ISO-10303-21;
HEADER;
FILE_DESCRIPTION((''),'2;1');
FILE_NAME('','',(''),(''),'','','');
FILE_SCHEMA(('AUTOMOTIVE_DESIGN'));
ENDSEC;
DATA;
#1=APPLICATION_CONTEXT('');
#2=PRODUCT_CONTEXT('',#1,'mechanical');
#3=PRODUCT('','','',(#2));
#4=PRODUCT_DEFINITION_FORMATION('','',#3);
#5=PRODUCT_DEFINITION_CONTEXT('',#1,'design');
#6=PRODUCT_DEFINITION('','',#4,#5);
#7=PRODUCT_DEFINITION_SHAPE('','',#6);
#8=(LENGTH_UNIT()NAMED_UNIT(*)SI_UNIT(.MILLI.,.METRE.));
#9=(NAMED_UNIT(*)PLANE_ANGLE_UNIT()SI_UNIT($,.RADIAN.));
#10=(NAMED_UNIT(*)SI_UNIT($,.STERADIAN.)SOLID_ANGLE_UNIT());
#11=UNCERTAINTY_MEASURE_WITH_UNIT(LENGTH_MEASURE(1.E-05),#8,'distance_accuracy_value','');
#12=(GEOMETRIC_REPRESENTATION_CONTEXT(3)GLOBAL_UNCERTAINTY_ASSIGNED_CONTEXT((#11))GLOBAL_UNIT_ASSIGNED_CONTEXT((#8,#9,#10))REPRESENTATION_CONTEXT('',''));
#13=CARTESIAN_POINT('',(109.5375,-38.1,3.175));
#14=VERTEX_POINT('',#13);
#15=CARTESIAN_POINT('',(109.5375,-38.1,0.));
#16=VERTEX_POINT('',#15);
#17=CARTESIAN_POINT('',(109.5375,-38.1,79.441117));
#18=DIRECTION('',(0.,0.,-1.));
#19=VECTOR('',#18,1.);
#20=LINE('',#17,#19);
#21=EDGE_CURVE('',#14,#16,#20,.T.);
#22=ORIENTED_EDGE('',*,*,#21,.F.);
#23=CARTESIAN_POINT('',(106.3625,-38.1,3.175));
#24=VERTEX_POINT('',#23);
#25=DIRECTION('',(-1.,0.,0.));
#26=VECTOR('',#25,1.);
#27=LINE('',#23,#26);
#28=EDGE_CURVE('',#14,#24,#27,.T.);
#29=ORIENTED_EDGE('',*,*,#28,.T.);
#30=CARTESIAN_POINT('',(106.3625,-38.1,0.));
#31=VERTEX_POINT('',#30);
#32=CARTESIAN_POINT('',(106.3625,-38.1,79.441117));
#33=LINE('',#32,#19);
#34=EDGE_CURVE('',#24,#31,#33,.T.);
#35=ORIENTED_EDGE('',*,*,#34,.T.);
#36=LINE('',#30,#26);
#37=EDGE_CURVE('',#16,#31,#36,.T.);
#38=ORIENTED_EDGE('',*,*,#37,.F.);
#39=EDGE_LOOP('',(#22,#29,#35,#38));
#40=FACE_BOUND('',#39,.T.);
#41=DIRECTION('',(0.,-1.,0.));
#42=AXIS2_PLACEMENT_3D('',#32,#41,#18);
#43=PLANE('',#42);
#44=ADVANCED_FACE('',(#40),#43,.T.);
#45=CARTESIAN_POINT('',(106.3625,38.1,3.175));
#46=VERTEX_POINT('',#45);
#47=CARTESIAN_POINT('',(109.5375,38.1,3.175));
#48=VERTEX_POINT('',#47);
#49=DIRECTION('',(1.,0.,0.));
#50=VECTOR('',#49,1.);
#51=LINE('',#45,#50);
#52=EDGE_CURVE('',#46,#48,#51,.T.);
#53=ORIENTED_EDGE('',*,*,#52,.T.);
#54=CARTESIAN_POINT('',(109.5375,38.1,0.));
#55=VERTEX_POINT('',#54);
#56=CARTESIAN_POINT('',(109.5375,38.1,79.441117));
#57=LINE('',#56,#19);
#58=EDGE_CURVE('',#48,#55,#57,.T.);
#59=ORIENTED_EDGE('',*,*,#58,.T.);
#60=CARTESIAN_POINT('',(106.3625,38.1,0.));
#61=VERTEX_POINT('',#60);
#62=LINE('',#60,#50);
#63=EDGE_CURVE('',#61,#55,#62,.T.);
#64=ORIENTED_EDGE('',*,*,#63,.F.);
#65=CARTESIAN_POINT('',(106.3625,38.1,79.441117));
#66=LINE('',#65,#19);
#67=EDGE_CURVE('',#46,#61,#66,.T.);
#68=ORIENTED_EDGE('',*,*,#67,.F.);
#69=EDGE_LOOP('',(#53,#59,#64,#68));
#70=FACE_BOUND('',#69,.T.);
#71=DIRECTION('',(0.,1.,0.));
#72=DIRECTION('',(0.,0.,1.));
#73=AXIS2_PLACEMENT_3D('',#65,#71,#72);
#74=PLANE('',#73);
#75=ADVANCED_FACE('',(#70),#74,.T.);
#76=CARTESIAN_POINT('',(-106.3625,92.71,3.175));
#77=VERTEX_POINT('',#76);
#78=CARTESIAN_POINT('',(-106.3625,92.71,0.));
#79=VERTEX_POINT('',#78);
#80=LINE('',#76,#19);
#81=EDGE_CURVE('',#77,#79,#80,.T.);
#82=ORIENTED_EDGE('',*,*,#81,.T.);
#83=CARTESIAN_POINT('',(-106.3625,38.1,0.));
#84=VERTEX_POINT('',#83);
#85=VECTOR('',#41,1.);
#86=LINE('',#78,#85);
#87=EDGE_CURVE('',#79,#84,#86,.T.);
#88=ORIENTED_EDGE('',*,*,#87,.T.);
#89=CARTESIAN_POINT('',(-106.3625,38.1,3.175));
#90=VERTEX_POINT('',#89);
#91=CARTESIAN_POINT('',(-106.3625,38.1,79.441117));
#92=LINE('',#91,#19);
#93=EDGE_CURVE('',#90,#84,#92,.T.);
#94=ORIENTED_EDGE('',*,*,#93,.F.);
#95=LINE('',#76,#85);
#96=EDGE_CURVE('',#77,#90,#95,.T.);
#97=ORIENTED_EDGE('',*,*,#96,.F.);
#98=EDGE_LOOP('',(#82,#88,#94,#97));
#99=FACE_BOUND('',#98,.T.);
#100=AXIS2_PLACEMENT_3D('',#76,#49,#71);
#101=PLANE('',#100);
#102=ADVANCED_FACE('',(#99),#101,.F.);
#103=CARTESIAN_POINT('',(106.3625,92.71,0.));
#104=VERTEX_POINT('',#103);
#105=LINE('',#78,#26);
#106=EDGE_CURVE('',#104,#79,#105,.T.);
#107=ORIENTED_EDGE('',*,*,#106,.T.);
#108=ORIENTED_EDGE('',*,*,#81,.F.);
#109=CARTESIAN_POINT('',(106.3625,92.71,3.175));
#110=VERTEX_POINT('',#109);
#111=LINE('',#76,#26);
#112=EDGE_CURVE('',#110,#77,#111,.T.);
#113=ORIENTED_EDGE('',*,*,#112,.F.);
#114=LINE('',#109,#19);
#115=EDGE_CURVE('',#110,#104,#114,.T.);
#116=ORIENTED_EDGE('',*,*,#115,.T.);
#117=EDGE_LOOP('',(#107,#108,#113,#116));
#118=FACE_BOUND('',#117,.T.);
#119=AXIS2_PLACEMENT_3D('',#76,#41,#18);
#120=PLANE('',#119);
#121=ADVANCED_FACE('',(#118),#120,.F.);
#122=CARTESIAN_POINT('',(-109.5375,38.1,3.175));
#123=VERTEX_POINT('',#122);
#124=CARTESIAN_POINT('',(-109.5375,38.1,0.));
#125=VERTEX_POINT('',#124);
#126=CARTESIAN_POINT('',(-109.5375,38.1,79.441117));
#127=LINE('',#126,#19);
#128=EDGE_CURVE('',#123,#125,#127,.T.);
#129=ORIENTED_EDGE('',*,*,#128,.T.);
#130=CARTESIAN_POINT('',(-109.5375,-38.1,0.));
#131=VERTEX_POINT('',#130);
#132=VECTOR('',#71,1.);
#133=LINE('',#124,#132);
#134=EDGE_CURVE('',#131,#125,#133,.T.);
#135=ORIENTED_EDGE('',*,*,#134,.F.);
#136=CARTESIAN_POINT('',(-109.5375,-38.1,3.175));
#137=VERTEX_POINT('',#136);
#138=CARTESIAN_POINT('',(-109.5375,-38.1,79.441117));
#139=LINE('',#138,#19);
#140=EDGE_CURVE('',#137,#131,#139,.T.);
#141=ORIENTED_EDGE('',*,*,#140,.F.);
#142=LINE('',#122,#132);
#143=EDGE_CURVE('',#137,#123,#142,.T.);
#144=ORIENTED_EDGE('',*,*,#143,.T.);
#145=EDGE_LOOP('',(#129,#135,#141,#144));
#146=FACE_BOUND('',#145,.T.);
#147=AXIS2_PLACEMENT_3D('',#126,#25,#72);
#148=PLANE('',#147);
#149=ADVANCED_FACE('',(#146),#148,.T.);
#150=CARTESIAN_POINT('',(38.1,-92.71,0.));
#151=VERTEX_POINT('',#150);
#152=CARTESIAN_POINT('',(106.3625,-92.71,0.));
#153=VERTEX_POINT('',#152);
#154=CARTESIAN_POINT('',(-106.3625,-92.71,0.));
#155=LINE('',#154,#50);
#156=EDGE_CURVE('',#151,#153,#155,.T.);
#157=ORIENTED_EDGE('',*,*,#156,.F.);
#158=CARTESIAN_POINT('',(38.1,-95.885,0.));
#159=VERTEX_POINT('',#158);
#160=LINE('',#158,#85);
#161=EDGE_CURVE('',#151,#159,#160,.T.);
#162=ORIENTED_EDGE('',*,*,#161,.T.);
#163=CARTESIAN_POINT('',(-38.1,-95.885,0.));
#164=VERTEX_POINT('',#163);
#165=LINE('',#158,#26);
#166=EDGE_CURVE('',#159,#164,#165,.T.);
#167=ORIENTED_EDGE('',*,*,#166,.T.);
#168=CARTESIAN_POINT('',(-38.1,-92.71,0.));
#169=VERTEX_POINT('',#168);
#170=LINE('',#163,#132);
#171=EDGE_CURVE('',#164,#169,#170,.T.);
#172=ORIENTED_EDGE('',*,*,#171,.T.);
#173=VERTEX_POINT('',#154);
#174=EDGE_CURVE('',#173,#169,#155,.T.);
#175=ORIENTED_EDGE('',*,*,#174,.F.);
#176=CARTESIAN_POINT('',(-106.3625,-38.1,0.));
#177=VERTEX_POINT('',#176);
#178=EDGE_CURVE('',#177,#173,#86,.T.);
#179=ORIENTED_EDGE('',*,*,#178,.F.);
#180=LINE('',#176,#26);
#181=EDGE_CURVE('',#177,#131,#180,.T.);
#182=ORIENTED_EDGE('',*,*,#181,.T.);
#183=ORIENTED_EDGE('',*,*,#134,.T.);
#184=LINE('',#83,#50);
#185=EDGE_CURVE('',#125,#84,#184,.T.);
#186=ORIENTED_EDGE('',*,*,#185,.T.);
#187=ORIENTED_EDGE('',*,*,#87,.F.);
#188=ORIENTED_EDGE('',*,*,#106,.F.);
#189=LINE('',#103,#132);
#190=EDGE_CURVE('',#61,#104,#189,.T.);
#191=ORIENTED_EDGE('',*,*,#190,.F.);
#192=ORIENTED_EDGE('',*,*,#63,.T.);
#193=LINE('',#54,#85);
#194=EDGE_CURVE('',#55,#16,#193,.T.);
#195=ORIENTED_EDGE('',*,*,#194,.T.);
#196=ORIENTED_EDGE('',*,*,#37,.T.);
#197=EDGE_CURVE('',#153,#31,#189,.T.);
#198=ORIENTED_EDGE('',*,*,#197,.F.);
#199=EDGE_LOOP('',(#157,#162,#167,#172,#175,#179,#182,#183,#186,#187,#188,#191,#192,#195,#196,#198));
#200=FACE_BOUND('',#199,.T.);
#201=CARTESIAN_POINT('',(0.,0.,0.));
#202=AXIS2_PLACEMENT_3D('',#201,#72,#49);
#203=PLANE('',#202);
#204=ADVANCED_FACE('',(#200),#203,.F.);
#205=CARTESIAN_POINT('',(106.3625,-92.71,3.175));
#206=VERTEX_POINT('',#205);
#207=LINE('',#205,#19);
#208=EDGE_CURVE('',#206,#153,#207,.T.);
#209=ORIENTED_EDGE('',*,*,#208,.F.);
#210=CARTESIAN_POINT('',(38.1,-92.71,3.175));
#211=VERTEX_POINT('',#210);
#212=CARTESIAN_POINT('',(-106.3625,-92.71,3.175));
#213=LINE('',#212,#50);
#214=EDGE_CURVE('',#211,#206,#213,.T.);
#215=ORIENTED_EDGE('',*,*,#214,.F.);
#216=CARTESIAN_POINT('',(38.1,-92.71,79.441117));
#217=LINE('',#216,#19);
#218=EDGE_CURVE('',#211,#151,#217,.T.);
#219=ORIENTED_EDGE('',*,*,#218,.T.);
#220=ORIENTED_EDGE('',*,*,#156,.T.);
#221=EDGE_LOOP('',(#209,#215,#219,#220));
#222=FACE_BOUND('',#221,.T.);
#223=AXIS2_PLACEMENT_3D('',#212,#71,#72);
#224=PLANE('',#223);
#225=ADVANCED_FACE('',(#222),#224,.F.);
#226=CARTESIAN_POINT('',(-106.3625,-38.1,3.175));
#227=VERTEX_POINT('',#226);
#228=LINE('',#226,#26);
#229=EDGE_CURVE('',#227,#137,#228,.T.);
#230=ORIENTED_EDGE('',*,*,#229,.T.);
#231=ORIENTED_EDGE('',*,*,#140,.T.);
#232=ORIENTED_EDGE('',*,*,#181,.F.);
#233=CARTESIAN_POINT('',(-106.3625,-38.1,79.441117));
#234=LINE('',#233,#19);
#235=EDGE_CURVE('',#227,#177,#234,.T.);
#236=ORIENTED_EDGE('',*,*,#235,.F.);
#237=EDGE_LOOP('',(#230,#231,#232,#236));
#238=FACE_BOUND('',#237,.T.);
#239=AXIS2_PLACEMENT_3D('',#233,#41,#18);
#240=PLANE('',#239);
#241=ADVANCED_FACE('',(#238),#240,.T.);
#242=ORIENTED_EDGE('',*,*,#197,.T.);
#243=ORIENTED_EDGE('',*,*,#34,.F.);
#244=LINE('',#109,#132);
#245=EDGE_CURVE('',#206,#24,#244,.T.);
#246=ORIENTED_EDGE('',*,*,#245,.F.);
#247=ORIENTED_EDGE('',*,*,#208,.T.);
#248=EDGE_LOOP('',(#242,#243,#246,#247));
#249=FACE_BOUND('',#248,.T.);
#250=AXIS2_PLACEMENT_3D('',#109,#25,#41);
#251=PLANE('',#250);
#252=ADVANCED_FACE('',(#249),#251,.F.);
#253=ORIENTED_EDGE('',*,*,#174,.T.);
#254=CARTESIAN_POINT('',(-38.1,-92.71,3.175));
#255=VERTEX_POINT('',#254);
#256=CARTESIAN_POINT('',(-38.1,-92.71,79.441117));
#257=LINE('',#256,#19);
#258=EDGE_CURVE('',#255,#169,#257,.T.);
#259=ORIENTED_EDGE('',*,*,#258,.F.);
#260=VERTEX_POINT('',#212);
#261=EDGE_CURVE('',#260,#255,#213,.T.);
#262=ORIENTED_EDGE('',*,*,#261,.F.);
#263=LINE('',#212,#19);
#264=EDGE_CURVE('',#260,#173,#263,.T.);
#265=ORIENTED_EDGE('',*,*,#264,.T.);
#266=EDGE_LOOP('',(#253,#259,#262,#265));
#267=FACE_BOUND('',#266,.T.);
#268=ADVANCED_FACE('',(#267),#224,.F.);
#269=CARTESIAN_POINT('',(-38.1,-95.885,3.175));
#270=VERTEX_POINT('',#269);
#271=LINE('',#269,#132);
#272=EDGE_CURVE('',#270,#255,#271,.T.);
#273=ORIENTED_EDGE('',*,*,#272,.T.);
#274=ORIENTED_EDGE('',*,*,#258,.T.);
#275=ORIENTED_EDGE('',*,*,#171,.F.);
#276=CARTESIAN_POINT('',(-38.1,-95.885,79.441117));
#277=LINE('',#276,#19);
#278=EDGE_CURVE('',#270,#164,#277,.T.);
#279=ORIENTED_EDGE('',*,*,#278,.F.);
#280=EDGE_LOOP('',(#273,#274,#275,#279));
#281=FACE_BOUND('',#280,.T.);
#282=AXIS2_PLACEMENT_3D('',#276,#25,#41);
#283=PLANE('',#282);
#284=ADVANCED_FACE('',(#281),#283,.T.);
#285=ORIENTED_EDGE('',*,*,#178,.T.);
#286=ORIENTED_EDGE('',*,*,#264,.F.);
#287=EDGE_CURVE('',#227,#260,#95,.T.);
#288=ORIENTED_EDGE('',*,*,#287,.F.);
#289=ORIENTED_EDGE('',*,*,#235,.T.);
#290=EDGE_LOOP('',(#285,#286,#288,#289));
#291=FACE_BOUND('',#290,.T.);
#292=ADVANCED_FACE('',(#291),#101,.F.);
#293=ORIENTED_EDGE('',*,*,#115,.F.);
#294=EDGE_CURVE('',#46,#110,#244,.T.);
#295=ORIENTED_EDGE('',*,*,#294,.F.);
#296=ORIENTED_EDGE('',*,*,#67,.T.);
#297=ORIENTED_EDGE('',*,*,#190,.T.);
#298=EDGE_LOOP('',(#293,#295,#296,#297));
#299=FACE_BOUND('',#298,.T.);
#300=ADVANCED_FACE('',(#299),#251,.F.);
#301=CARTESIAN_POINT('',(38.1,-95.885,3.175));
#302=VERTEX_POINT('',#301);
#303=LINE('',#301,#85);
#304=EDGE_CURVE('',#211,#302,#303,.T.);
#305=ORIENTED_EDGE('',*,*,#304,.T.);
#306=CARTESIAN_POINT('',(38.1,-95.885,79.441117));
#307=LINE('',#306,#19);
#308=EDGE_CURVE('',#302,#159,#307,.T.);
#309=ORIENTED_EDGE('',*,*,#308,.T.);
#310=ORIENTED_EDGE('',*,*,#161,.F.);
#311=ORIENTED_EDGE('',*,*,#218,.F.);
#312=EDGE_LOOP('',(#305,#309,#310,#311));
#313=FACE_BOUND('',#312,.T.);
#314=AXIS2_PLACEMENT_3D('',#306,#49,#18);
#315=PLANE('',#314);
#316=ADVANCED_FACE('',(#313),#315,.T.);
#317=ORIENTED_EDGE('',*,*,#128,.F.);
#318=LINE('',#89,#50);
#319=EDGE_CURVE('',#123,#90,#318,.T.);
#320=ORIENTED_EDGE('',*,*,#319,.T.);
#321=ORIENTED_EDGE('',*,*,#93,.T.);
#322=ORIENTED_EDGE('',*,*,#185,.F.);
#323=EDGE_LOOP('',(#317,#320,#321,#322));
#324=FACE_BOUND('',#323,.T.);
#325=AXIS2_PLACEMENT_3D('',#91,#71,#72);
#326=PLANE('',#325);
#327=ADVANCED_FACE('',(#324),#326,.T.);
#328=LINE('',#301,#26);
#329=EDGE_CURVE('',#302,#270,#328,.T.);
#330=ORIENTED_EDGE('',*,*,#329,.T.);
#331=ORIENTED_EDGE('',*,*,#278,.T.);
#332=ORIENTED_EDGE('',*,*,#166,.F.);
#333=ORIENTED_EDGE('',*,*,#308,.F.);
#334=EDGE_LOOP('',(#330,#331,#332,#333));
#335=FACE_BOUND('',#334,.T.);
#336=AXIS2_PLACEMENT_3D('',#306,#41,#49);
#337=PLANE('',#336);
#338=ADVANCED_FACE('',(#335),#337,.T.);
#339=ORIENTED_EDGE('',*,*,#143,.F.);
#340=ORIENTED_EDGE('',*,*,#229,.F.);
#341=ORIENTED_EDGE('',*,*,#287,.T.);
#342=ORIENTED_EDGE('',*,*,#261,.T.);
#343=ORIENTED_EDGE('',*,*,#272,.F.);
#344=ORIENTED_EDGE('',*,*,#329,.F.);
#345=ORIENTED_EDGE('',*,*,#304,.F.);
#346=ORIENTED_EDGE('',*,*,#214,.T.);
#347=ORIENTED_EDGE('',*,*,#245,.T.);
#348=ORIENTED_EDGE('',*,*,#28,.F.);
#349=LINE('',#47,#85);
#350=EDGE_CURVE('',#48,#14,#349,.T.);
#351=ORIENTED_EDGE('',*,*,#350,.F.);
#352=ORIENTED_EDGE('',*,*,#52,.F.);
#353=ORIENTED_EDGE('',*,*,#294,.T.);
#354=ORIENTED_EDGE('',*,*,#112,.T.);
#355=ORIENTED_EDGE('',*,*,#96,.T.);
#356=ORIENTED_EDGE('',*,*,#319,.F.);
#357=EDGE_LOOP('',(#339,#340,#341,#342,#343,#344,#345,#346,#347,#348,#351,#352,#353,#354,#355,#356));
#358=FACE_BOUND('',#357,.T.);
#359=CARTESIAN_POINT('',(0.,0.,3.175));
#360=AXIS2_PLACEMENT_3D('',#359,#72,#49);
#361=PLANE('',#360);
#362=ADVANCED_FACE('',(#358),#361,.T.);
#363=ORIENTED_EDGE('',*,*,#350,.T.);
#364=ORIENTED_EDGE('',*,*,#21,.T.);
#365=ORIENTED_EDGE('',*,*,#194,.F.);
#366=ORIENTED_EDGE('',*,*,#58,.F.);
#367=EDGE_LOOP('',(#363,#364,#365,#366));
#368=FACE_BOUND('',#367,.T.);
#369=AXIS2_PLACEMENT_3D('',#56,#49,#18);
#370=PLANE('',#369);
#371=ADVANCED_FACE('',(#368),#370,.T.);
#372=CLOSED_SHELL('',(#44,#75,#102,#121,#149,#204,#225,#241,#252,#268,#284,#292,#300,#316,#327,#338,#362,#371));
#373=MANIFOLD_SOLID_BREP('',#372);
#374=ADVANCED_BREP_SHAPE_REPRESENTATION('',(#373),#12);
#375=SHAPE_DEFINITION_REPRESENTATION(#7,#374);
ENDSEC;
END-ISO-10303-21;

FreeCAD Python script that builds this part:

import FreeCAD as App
import Part
import Sketcher

V = App.Vector
Q = App.Units.Quantity

doc = App.newDocument("Part")
body = doc.addObject("PartDesign::Body", "Body")

# Sketch on XY plane
sketch1 = body.newObject("Sketcher::SketchObject", "Sketch")
sketch1.AttachmentSupport = (doc.getObject("XY_Plane"), [""])
sketch1.MapMode = "FlatFace"
sketch1.addGeometry(Part.LineSegment(V(-106, 93, 0), V(-106, -93, 0)), False)
sketch1.addGeometry(Part.LineSegment(V(-106, -93, 0), V(106, -93, 0)), False)
sketch1.addGeometry(Part.LineSegment(V(106, -93, 0), V(106, 93, 0)), False)
sketch1.addGeometry(Part.LineSegment(V(106, 93, 0), V(-106, 93, 0)), False)
sketch1.addConstraint(Sketcher.Constraint("Coincident", 0, 2, 1, 1))
sketch1.addConstraint(Sketcher.Constraint("Coincident", 1, 2, 2, 1))
sketch1.addConstraint(Sketcher.Constraint("Coincident", 2, 2, 3, 1))
sketch1.addConstraint(Sketcher.Constraint("Coincident", 3, 2, 0, 1))
sketch1.addConstraint(Sketcher.Constraint("Vertical", 0))
sketch1.addConstraint(Sketcher.Constraint("Horizontal", 1))
sketch1.addConstraint(Sketcher.Constraint("Vertical", 2))
sketch1.addConstraint(Sketcher.Constraint("Horizontal", 3))
sketch1.addConstraint(Sketcher.Constraint("Symmetric", 0, 2, 2, 2, -1, 1))
sketch1.addConstraint(Sketcher.Constraint("DistanceY", 0, 2, 0, 1, Q("7.3 in")))
sketch1.addConstraint(Sketcher.Constraint("DistanceX", 1, 1, 1, 2, Q("8.375 in")))
pad1 = body.newObject("PartDesign::Pad", "Pad")
pad1.Profile = sketch1
pad1.Length = Q("0.125 in")

# Sketch on XY plane
sketch2 = body.newObject("Sketcher::SketchObject", "Sketch001")
sketch2.AttachmentSupport = (doc.getObject("XY_Plane"), [""])
sketch2.MapMode = "FlatFace"
sketch2.addGeometry(Part.LineSegment(V(109.5, 38.1, 0), V(109.5, -38.1, 0)), False)
sketch2.addGeometry(Part.LineSegment(V(109.5, -38.1, 0), V(106.4, -38.1, 0)), False)
sketch2.addGeometry(Part.LineSegment(V(106.4, -38.1, 0), V(106.4, 38.1, 0)), False)
sketch2.addGeometry(Part.LineSegment(V(106.4, 38.1, 0), V(109.5, 38.1, 0)), False)
sketch2.addGeometry(Part.LineSegment(V(-106.4, 38.1, 0), V(-106.4, -38.1, 0)), False)
sketch2.addGeometry(Part.LineSegment(V(-106.4, -38.1, 0), V(-109.5, -38.1, 0)), False)
sketch2.addGeometry(Part.LineSegment(V(-109.5, -38.1, 0), V(-109.5, 38.1, 0)), False)
sketch2.addGeometry(Part.LineSegment(V(-109.5, 38.1, 0), V(-106.4, 38.1, 0)), False)
sketch2.addConstraint(Sketcher.Constraint("Coincident", 0, 2, 1, 1))
sketch2.addConstraint(Sketcher.Constraint("Coincident", 1, 2, 2, 1))
sketch2.addConstraint(Sketcher.Constraint("Coincident", 2, 2, 3, 1))
sketch2.addConstraint(Sketcher.Constraint("Coincident", 3, 2, 0, 1))
sketch2.addConstraint(Sketcher.Constraint("Coincident", 4, 2, 5, 1))
sketch2.addConstraint(Sketcher.Constraint("Coincident", 5, 2, 6, 1))
sketch2.addConstraint(Sketcher.Constraint("Coincident", 6, 2, 7, 1))
sketch2.addConstraint(Sketcher.Constraint("Coincident", 7, 2, 4, 1))
sketch2.addConstraint(Sketcher.Constraint("Vertical", 0))
sketch2.addConstraint(Sketcher.Constraint("Horizontal", 1))
sketch2.addConstraint(Sketcher.Constraint("Vertical", 2))
sketch2.addConstraint(Sketcher.Constraint("Horizontal", 3))
sketch2.addConstraint(Sketcher.Constraint("Vertical", 4))
sketch2.addConstraint(Sketcher.Constraint("Horizontal", 5))
sketch2.addConstraint(Sketcher.Constraint("Vertical", 6))
sketch2.addConstraint(Sketcher.Constraint("Horizontal", 7))
sketch2.addConstraint(Sketcher.Constraint("Symmetric", 2, 2, 4, 2, -1, 1))
sketch2.addConstraint(Sketcher.Constraint("Symmetric", 0, 2, 6, 2, -1, 1))
sketch2.addConstraint(Sketcher.Constraint("Horizontal", 1, 2, 4, 2))
sketch2.addConstraint(Sketcher.Constraint("DistanceY", 0, 2, 0, 1, Q("3 in")))
sketch2.addConstraint(Sketcher.Constraint("DistanceX", 4, 2, 0, 2, Q("8.5 in")))
sketch2.addConstraint(Sketcher.Constraint("DistanceX", 1, 2, 1, 1, Q("0.125 in")))
pad2 = body.newObject("PartDesign::Pad", "Pad001")
pad2.Profile = sketch2
pad2.Length = Q("0.125 in")

# Sketch on XY plane
sketch3 = body.newObject("Sketcher::SketchObject", "Sketch002")
sketch3.AttachmentSupport = (doc.getObject("XY_Plane"), [""])
sketch3.MapMode = "FlatFace"
sketch3.addGeometry(Part.LineSegment(V(38.1, -92.7, 0), V(38.1, -95.9, 0)), False)
sketch3.addGeometry(Part.LineSegment(V(38.1, -95.9, 0), V(-38.1, -95.9, 0)), False)
sketch3.addGeometry(Part.LineSegment(V(-38.1, -95.9, 0), V(-38.1, -92.7, 0)), False)
sketch3.addGeometry(Part.LineSegment(V(-38.1, -92.7, 0), V(38.1, -92.7, 0)), False)
sketch3.addConstraint(Sketcher.Constraint("Coincident", 0, 2, 1, 1))
sketch3.addConstraint(Sketcher.Constraint("Coincident", 1, 2, 2, 1))
sketch3.addConstraint(Sketcher.Constraint("Coincident", 2, 2, 3, 1))
sketch3.addConstraint(Sketcher.Constraint("Coincident", 3, 2, 0, 1))
sketch3.addConstraint(Sketcher.Constraint("Vertical", 0))
sketch3.addConstraint(Sketcher.Constraint("Horizontal", 1))
sketch3.addConstraint(Sketcher.Constraint("Vertical", 2))
sketch3.addConstraint(Sketcher.Constraint("Horizontal", 3))
sketch3.addConstraint(Sketcher.Constraint("DistanceX", 1, 2, 1, 1, Q("3 in")))
sketch3.addConstraint(Sketcher.Constraint("DistanceX", -1, 1, 0, 2, Q("1.5 in")))
sketch3.addConstraint(Sketcher.Constraint("DistanceY", 0, 2, 0, 1, Q("0.125 in")))
sketch3.addConstraint(Sketcher.Constraint("DistanceY", 2, 2, -1, 1, Q("3.65 in")))
pad3 = body.newObject("PartDesign::Pad", "Pad002")
pad3.Profile = sketch3
pad3.Length = Q("0.125 in")

doc.recompute()
